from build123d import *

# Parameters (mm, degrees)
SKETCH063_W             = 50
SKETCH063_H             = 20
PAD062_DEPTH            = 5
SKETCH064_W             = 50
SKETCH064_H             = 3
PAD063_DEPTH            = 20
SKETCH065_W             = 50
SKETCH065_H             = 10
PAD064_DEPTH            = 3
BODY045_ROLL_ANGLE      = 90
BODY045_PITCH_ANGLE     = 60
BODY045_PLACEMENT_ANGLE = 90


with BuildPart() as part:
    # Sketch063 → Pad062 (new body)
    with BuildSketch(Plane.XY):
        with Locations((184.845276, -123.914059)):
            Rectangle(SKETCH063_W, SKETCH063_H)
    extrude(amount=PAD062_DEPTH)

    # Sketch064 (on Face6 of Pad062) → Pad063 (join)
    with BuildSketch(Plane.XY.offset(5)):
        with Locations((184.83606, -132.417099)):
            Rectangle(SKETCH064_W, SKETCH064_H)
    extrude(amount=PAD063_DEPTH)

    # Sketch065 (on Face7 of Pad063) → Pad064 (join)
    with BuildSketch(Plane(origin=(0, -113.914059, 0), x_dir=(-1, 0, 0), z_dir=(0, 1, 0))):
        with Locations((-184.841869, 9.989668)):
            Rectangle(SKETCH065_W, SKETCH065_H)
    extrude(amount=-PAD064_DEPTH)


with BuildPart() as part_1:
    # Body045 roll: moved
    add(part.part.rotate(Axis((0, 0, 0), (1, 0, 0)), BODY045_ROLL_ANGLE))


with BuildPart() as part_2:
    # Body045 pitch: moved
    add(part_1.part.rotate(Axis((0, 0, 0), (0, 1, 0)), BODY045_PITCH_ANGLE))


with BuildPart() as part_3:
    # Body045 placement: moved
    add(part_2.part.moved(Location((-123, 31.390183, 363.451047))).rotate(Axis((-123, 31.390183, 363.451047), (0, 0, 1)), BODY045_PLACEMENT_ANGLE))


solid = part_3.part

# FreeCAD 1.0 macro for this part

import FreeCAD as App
import Part
import Sketcher
from FreeCAD import Vector


def add_polygon(sketch, points):
    """Adds a closed chain of lines whose ends are joined by coincident constraints."""
    first, n = sketch.GeometryCount, len(points)
    for a, b in zip(points, points[1:] + points[:1]):
        sketch.addGeometry(Part.LineSegment(App.Vector(*a, 0), App.Vector(*b, 0)), False)
    for i in range(n):
        sketch.addConstraint(Sketcher.Constraint("Coincident", first + i, 2, first + (i + 1) % n, 1))

doc = App.newDocument("Part")
body = doc.addObject("PartDesign::Body", "Body")

# Sketch on XY plane
sketch1 = body.newObject("Sketcher::SketchObject", "Sketch")
sketch1.AttachmentSupport = (doc.getObject("XY_Plane"), [""])
sketch1.MapMode = "FlatFace"
add_polygon(sketch1, [(159.845276, -113.914059), (159.845276, -133.914059), (209.845276, -133.914059), (209.845276, -113.914059)])  # lines 0-3
sketch1.addConstraint([
    Sketcher.Constraint("Vertical", 0),
    Sketcher.Constraint("Horizontal", 1),
    Sketcher.Constraint("Vertical", 2),
    Sketcher.Constraint("Horizontal", 3),
    Sketcher.Constraint("DistanceX", 1, 1, 1, 2, 50.0),
    Sketcher.Constraint("DistanceY", 0, 2, 0, 1, 20.0),
    Sketcher.Constraint("DistanceY", 0, 2, -1, 1, 133.914059),
    Sketcher.Constraint("DistanceX", -1, 1, 0, 2, 159.845276),
])
pad1 = body.newObject("PartDesign::Pad", "Pad")
pad1.Profile = sketch1
pad1.Length = 5

# Sketch on XY plane
sketch2 = body.newObject("Sketcher::SketchObject", "Sketch001")
sketch2.AttachmentSupport = (doc.getObject("XY_Plane"), [""])
sketch2.MapMode = "FlatFace"
sketch2.AttachmentOffset = App.Placement(Vector(0, 0, 5), App.Rotation())
add_polygon(sketch2, [(159.83606, -130.917099), (159.83606, -133.917099), (209.83606, -133.917099), (209.83606, -130.917099)])  # lines 0-3
sketch2.addConstraint([
    Sketcher.Constraint("Vertical", 0),
    Sketcher.Constraint("Horizontal", 1),
    Sketcher.Constraint("Vertical", 2),
    Sketcher.Constraint("Horizontal", 3),
    Sketcher.Constraint("DistanceX", 1, 1, 1, 2, 50.0),
    Sketcher.Constraint("DistanceY", 0, 2, 0, 1, 3.0),
    Sketcher.Constraint("DistanceY", 0, 2, -1, 1, 133.917099),
    Sketcher.Constraint("DistanceX", -1, 1, 0, 2, 159.83606),
])
pad2 = body.newObject("PartDesign::Pad", "Pad001")
pad2.Profile = sketch2
pad2.Length = 20

# Sketch on XZ plane
sketch3 = body.newObject("Sketcher::SketchObject", "Sketch002")
sketch3.AttachmentSupport = (doc.getObject("XZ_Plane"), [""])
sketch3.MapMode = "FlatFace"
sketch3.AttachmentOffset = App.Placement(Vector(0, 0, 113.914059), App.Rotation())
add_polygon(sketch3, [(209.841869, 14.989668), (209.841869, 4.989668), (159.841869, 4.989668), (159.841869, 14.989668)])  # lines 0-3
sketch3.addConstraint([
    Sketcher.Constraint("Vertical", 0),
    Sketcher.Constraint("Horizontal", 1),
    Sketcher.Constraint("Vertical", 2),
    Sketcher.Constraint("Horizontal", 3),
    Sketcher.Constraint("DistanceX", 1, 2, 1, 1, 50.0),
    Sketcher.Constraint("DistanceY", 0, 2, 0, 1, 10.0),
    Sketcher.Constraint("DistanceX", -1, 1, 0, 2, 209.841869),
    Sketcher.Constraint("DistanceY", -1, 1, 0, 2, 4.989668),
])
pad3 = body.newObject("PartDesign::Pad", "Pad002")
pad3.Profile = sketch3
pad3.Length = 3
body2 = doc.addObject("PartDesign::Body", "Body001")
doc.recompute()

body.Placement = App.Placement(Vector(0, 0, 0), App.Rotation(Vector(1, 0, 0), 90))
boolean = body2.newObject("PartDesign::Boolean", "Boolean")
boolean.Type = "Fuse"
boolean.addObjects([body])
body3 = doc.addObject("PartDesign::Body", "Body002")
doc.recompute()

body2.Placement = App.Placement(Vector(0, 0, 0), App.Rotation(Vector(0, 1, 0), 60))
boolean2 = body3.newObject("PartDesign::Boolean", "Boolean001")
boolean2.Type = "Fuse"
boolean2.addObjects([body2])
body4 = doc.addObject("PartDesign::Body", "Body003")
doc.recompute()

body3.Placement = App.Placement(Vector(-123, 31.390183, 363.451047), App.Rotation(Vector(0, 0, 1), 90))
boolean3 = body4.newObject("PartDesign::Boolean", "Boolean002")
boolean3.Type = "Fuse"
boolean3.addObjects([body3])

doc.recompute()
